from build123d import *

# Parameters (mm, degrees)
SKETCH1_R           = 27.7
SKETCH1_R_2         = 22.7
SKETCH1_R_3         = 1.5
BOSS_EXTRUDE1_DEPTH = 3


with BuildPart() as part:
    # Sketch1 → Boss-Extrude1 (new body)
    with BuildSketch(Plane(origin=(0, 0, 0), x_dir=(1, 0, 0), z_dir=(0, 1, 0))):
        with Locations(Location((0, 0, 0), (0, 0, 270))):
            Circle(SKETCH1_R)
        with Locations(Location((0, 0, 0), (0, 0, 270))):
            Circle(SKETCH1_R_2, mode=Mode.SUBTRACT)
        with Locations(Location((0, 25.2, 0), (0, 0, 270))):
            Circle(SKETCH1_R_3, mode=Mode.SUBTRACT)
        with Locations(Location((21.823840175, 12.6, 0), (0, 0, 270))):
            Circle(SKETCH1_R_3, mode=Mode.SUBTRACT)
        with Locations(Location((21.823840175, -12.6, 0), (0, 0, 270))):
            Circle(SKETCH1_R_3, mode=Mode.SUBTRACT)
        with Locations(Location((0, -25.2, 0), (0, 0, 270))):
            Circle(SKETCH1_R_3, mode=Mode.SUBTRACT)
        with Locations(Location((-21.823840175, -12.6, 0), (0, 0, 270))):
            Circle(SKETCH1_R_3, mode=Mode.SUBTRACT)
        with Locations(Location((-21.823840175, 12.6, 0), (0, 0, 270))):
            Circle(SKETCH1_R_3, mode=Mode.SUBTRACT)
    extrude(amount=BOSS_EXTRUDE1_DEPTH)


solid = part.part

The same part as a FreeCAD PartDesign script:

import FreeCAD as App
import Part
import Sketcher

doc = App.newDocument("Part")
body = doc.addObject("PartDesign::Body", "Body")

# Sketch on XZ plane
sketch1 = doc.addObject("Sketcher::SketchObject", "Sketch")
body.addObject(sketch1)
sketch1.AttachmentSupport = (doc.XZ_Plane, [""])
sketch1.MapMode = "FlatFace"
sketch1.addGeometry([
    Part.Circle(App.Vector(0, 0, 0), App.Vector(0, 0, 1), 27.7),  # 0
    Part.Circle(App.Vector(-21.82384, -12.6, 0), App.Vector(0, 0, 1), 1.5),  # 1
    Part.Circle(App.Vector(0, -25.2, 0), App.Vector(0, 0, 1), 1.5),  # 2
    Part.Circle(App.Vector(-21.82384, 12.6, 0), App.Vector(0, 0, 1), 1.5),  # 3
    Part.Circle(App.Vector(0, 0, 0), App.Vector(0, 0, 1), 22.7),  # 4
    Part.Circle(App.Vector(21.82384, -12.6, 0), App.Vector(0, 0, 1), 1.5),  # 5
    Part.Circle(App.Vector(0, 25.2, 0), App.Vector(0, 0, 1), 1.5),  # 6
    Part.Circle(App.Vector(21.82384, 12.6, 0), App.Vector(0, 0, 1), 1.5),  # 7
], False)
sketch1.addConstraint([
    Sketcher.Constraint("Coincident", 0, 3, -1, 1),
    Sketcher.Constraint("Coincident", 4, 3, -1, 1),
    Sketcher.Constraint("Equal", 1, 2),
    Sketcher.Constraint("Equal", 2, 3),
    Sketcher.Constraint("Equal", 3, 5),
    Sketcher.Constraint("Equal", 5, 6),
    Sketcher.Constraint("Equal", 6, 7),
    Sketcher.Constraint("Symmetric", 3, 3, 5, 3, -1, 1),
    Sketcher.Constraint("Symmetric", 2, 3, 6, 3, -1, 1),
    Sketcher.Constraint("Symmetric", 1, 3, 7, 3, -1, 1),
    Sketcher.Constraint("Symmetric", 1, 3, 5, 3, -2),
    Sketcher.Constraint("PointOnObject", 2, 3, -2),
    Sketcher.Constraint("Diameter", 1, 3.0),
    Sketcher.Constraint("Diameter", 0, 55.4),
    Sketcher.Constraint("Diameter", 4, 45.4),
    Sketcher.Constraint("DistanceY", 1, 3, -1, 1, 12.6),
    Sketcher.Constraint("DistanceY", 2, 3, -1, 1, 25.2),
    Sketcher.Constraint("DistanceX", 1, 3, -1, 1, 21.82384),
])
pad1 = doc.addObject("PartDesign::Pad", "Pad")
body.addObject(pad1)
pad1.Profile = sketch1
pad1.Length = 3
pad1.Reversed = True

doc.recompute()
